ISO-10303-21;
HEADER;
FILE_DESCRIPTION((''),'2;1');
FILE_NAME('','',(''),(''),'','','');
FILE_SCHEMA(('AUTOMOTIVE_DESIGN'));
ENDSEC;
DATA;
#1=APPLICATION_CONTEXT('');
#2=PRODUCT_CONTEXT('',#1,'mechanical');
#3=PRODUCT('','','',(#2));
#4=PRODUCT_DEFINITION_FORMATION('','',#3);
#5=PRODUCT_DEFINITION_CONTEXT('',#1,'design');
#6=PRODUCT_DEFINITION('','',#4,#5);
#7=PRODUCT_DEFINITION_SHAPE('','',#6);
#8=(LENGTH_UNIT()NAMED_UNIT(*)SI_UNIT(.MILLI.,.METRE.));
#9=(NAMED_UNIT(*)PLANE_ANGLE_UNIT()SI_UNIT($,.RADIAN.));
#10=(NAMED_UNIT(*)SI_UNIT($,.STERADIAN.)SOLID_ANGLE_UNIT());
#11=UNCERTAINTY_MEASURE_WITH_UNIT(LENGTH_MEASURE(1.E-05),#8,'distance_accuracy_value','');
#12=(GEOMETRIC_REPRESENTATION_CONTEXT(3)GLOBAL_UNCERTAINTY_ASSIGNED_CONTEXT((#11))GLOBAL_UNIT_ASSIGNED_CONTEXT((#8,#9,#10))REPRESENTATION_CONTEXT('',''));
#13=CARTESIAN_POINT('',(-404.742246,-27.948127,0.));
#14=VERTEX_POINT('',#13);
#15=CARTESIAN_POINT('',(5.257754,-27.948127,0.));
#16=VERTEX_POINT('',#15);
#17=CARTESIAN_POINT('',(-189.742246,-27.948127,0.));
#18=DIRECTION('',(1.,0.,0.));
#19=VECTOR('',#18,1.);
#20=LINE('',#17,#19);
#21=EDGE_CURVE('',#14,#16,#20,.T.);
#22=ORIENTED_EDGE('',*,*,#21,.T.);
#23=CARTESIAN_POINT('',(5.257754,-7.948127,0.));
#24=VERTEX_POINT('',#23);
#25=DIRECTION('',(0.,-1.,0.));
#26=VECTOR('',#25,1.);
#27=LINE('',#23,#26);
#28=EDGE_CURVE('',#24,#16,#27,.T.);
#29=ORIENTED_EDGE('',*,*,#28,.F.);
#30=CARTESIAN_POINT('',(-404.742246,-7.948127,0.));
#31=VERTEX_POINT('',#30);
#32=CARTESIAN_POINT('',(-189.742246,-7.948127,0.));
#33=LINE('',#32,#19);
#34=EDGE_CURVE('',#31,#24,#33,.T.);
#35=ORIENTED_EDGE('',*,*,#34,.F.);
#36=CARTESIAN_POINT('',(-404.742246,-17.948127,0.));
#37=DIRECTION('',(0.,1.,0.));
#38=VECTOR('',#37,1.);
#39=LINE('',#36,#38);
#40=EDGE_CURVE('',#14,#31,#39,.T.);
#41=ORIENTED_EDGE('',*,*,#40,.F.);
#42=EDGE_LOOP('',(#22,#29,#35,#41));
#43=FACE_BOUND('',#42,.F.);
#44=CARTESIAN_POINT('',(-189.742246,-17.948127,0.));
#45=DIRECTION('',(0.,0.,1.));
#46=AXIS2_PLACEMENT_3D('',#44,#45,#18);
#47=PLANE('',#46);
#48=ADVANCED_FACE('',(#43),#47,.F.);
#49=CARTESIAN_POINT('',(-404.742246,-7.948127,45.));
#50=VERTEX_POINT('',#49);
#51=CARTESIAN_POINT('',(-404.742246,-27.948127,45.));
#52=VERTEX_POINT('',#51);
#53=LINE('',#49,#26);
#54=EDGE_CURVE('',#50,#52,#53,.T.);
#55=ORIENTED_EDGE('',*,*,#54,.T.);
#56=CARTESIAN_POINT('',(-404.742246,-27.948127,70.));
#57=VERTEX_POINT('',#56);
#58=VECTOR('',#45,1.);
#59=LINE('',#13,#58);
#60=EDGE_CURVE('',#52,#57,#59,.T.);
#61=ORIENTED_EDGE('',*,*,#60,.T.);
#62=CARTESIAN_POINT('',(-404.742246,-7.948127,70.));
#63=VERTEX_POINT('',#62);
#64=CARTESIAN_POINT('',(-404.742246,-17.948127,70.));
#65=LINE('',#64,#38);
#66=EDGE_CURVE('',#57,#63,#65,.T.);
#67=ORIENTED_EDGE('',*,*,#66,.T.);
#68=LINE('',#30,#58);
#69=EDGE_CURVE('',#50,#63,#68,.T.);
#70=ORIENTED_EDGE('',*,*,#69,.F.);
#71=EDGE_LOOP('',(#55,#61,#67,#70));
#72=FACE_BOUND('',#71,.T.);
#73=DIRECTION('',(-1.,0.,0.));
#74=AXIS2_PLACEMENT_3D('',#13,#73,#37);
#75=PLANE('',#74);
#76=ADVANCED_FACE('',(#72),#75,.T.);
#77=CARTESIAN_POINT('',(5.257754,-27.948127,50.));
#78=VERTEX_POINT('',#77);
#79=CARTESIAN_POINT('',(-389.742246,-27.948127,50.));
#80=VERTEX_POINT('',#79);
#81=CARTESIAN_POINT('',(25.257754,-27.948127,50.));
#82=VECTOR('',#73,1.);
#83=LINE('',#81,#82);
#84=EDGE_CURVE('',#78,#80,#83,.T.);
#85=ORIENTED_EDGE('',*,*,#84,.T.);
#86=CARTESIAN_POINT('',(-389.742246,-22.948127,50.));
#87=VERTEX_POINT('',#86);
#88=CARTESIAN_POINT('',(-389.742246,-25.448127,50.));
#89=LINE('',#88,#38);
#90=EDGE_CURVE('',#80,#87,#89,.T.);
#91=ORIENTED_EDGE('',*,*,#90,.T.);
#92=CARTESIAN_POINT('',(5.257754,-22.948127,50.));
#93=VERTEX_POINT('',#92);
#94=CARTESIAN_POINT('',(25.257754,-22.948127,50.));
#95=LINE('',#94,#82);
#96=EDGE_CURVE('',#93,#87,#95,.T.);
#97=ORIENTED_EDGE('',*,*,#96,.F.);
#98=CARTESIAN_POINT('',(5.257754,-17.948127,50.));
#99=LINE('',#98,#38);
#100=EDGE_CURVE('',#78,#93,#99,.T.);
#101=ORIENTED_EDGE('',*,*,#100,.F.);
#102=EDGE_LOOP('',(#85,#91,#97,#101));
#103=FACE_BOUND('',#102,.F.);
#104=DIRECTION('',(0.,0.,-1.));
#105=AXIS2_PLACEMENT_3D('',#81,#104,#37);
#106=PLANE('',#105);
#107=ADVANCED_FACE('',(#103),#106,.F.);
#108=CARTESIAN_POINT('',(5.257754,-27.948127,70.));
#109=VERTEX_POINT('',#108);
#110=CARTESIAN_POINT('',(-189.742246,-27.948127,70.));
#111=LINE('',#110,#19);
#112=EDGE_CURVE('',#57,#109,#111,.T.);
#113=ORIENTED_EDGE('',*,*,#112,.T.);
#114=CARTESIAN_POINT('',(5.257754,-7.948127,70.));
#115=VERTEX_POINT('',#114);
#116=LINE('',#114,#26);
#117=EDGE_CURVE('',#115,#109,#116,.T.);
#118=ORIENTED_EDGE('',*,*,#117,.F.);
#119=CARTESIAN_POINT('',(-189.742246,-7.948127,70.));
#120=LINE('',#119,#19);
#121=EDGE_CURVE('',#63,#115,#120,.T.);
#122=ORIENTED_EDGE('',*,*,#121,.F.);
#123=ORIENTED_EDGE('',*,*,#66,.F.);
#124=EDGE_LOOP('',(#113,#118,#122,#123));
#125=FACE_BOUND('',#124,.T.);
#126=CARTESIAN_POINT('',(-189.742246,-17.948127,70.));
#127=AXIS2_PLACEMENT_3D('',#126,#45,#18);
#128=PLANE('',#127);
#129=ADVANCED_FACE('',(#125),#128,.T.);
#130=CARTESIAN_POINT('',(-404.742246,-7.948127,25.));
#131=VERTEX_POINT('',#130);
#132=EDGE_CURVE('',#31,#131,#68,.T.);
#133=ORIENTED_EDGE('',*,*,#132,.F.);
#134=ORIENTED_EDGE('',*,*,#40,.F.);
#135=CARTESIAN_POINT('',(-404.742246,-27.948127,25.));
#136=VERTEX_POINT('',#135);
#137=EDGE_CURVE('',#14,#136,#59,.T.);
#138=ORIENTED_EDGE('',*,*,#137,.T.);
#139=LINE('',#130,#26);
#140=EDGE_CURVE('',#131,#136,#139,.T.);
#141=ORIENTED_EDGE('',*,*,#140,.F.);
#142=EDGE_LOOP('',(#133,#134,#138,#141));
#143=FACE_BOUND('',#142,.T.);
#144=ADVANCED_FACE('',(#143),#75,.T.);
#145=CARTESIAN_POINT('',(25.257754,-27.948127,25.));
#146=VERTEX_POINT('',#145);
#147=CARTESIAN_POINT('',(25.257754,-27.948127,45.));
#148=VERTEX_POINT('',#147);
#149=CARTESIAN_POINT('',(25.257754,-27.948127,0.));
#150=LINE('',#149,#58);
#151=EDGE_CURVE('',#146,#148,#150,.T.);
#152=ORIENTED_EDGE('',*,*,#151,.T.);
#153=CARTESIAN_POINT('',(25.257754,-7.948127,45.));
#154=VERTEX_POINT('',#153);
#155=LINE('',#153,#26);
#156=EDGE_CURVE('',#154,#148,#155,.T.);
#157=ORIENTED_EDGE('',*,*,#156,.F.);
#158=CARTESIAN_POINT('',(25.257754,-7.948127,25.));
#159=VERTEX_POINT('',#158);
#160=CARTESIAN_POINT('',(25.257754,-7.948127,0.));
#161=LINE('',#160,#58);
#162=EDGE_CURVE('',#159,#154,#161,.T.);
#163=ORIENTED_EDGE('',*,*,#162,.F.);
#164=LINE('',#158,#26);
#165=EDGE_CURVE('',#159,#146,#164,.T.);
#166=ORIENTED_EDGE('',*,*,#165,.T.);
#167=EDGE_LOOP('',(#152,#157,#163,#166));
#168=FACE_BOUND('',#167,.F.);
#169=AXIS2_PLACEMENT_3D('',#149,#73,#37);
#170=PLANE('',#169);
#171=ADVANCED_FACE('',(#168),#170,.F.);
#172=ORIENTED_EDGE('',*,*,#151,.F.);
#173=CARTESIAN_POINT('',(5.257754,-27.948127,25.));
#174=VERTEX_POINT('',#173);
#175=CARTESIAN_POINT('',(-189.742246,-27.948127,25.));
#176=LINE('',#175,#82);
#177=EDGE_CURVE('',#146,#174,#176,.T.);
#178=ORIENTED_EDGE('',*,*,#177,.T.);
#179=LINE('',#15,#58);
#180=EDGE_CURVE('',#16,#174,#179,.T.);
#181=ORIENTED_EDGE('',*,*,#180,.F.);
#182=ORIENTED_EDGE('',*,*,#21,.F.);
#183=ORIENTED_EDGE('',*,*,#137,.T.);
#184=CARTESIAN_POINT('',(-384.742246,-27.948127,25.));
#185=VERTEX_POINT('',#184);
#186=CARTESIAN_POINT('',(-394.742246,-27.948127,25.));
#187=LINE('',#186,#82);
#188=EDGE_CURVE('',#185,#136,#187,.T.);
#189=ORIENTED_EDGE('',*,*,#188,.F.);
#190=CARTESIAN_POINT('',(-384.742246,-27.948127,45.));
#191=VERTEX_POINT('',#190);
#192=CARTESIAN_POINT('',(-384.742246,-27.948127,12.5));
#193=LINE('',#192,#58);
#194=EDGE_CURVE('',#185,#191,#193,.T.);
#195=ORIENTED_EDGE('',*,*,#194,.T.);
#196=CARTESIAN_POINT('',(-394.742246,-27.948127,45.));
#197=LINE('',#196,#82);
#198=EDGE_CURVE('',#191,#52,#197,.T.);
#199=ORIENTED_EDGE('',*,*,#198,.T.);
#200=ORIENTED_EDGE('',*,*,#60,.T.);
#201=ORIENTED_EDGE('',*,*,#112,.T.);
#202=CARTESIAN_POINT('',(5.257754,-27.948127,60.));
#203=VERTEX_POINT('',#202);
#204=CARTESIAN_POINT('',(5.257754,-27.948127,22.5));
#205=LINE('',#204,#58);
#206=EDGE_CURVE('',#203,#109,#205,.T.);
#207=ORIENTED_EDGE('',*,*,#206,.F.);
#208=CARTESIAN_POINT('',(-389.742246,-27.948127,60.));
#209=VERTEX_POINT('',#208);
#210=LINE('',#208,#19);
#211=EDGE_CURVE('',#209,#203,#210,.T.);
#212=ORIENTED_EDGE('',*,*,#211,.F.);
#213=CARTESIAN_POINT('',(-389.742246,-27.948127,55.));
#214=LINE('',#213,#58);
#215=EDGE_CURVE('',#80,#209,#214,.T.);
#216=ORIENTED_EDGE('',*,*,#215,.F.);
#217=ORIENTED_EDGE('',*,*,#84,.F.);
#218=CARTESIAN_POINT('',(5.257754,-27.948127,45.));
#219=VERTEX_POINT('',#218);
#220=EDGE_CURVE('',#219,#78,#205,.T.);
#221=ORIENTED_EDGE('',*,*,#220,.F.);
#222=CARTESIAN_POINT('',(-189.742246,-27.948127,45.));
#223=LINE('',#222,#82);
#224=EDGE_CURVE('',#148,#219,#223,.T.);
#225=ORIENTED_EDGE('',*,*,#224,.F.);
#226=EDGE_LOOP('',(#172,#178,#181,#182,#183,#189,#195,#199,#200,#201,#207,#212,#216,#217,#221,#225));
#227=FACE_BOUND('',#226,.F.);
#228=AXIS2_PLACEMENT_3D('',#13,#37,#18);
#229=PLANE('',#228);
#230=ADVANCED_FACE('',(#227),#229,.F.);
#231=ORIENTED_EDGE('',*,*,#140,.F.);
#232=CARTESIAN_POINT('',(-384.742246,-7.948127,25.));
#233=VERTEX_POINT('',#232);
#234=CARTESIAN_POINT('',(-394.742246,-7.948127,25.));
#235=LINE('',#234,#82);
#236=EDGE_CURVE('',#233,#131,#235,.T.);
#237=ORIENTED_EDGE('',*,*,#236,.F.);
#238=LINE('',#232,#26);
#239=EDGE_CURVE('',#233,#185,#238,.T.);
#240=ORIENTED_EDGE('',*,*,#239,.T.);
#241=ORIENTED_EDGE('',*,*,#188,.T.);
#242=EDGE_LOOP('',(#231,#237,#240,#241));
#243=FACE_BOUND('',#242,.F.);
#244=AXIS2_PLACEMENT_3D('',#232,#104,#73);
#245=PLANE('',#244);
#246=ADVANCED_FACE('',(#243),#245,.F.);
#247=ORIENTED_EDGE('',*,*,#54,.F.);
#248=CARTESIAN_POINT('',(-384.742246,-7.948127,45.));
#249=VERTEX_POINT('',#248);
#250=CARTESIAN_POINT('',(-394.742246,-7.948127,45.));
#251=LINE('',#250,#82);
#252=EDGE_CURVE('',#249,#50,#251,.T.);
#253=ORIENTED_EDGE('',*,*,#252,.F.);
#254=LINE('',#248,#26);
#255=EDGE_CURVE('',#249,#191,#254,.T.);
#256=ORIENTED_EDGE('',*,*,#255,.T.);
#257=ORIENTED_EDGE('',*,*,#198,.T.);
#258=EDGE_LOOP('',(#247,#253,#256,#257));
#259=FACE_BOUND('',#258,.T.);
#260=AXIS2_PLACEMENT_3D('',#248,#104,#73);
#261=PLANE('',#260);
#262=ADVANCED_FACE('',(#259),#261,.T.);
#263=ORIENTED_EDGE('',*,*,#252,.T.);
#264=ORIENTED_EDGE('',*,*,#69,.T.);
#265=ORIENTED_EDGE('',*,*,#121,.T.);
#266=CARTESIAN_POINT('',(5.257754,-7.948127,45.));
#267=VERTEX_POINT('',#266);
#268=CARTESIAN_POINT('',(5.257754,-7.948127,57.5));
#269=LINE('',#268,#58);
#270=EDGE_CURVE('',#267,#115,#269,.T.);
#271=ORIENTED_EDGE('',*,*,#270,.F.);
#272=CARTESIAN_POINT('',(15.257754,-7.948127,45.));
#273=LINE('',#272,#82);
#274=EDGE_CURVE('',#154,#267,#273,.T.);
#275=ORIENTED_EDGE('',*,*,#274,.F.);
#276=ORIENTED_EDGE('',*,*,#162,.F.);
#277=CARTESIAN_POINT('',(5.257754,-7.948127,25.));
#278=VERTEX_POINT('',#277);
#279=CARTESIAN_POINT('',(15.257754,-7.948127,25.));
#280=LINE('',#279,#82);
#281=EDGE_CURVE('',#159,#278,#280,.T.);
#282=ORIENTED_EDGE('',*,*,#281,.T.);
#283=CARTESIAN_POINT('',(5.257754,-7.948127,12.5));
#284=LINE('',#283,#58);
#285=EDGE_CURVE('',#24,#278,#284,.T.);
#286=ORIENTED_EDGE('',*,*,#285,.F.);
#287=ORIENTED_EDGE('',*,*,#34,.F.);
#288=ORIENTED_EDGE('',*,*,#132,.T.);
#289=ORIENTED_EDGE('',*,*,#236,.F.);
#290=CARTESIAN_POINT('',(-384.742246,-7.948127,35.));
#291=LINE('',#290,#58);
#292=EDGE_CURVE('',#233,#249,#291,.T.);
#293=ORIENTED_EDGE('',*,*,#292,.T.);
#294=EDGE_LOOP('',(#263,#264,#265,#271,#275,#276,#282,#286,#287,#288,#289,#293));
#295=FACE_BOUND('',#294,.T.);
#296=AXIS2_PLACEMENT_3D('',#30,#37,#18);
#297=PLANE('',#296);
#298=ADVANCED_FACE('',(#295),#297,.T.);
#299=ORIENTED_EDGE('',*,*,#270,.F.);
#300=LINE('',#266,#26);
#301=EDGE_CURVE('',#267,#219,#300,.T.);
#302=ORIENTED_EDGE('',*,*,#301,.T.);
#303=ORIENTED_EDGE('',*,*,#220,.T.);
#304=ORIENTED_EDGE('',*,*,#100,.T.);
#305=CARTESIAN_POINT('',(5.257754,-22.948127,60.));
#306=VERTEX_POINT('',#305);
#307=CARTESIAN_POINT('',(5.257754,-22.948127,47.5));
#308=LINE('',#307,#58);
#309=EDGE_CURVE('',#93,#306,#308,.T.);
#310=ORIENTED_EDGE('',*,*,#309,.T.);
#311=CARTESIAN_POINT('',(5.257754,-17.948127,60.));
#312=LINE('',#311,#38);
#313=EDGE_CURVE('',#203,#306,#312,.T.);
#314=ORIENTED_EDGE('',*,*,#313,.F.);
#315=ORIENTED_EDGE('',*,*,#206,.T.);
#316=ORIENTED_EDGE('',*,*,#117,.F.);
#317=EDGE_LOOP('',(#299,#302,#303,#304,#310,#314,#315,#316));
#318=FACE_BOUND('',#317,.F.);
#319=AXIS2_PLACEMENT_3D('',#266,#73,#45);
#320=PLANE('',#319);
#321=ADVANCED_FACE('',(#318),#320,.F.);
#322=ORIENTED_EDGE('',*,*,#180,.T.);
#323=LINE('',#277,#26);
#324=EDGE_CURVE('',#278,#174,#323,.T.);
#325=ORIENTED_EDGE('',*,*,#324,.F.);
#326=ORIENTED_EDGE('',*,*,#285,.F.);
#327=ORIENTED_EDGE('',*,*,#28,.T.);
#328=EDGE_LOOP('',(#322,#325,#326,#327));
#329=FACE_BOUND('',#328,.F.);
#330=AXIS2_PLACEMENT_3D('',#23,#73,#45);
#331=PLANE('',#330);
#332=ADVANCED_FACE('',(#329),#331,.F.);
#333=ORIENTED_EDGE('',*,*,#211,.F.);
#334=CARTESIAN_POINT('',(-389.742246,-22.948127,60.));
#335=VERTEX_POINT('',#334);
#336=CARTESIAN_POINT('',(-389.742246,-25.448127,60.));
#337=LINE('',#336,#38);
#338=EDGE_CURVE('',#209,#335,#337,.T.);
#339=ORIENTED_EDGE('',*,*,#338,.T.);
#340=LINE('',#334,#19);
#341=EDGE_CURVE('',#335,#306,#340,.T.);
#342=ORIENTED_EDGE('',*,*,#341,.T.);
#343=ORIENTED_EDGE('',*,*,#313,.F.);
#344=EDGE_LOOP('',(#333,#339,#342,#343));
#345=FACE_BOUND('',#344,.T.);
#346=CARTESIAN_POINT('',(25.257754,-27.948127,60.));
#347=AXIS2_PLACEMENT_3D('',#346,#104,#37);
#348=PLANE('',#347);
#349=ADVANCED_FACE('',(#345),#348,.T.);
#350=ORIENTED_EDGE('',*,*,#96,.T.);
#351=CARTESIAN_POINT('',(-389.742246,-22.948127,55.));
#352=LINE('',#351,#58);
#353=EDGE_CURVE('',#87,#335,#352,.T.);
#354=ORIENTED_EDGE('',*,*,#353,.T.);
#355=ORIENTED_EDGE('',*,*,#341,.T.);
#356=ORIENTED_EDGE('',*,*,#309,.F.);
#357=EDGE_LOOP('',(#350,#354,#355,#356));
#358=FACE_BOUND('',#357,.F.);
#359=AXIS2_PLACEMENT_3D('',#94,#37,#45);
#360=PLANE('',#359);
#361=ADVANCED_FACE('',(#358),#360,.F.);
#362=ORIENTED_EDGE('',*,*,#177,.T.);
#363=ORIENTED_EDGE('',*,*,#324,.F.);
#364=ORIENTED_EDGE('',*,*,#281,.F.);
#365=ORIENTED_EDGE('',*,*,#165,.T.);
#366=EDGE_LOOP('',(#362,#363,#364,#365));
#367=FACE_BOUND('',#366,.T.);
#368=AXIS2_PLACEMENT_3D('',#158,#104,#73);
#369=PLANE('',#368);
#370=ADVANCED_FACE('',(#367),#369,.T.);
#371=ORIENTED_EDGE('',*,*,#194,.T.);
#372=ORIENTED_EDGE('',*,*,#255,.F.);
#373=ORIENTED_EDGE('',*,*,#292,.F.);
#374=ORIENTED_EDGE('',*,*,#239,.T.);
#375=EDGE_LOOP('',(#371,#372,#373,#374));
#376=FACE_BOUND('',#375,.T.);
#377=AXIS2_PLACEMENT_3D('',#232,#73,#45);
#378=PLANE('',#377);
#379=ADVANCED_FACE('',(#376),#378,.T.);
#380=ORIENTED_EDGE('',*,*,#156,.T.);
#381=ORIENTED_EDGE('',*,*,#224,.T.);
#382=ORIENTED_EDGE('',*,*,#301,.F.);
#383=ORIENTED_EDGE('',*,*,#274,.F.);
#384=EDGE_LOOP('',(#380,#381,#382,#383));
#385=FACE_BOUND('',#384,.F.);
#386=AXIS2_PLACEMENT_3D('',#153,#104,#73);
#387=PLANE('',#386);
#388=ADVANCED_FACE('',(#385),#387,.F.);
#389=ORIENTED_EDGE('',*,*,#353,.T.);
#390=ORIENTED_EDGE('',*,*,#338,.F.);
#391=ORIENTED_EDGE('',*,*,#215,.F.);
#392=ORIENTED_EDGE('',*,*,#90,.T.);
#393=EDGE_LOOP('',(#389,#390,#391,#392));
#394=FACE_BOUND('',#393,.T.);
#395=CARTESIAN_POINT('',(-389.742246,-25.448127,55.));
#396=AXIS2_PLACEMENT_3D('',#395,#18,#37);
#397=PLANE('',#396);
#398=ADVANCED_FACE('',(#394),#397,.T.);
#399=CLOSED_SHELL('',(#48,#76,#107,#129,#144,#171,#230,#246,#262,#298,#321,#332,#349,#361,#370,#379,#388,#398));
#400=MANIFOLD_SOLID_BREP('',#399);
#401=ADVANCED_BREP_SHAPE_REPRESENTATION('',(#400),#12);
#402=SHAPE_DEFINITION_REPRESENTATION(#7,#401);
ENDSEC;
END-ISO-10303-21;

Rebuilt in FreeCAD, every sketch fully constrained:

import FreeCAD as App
import Part
import Sketcher

doc = App.newDocument("Part")
body = doc.addObject("PartDesign::Body", "Body")

# Sketch on XY plane
sketch1 = doc.addObject("Sketcher::SketchObject", "Sketch")
body.addObject(sketch1)
sketch1.AttachmentSupport = (doc.XY_Plane, [""])
sketch1.MapMode = "FlatFace"
sketch1.addGeometry([
    Part.LineSegment(App.Vector(-404.742246, -7.948127, 0), App.Vector(-404.742246, -27.948127, 0)),
    Part.LineSegment(App.Vector(-404.742246, -27.948127, 0), App.Vector(25.257754, -27.948127, 0)),
    Part.LineSegment(App.Vector(25.257754, -27.948127, 0), App.Vector(25.257754, -7.948127, 0)),
    Part.LineSegment(App.Vector(25.257754, -7.948127, 0), App.Vector(-404.742246, -7.948127, 0)),
], False)
sketch1.addConstraint([
    Sketcher.Constraint("Coincident", 0, 2, 1, 1),
    Sketcher.Constraint("Coincident", 1, 2, 2, 1),
    Sketcher.Constraint("Coincident", 2, 2, 3, 1),
    Sketcher.Constraint("Coincident", 3, 2, 0, 1),
    Sketcher.Constraint("Vertical", 0),
    Sketcher.Constraint("Horizontal", 1),
    Sketcher.Constraint("Vertical", 2),
    Sketcher.Constraint("Horizontal", 3),
    Sketcher.Constraint("DistanceX", 1, 1, 1, 2, 430.0),
    Sketcher.Constraint("DistanceY", 0, 2, 0, 1, 20.0),
    Sketcher.Constraint("DistanceX", 0, 2, -1, 1, 404.742246),
    Sketcher.Constraint("DistanceY", 0, 2, -1, 1, 27.948127),
])
pad1 = doc.addObject("PartDesign::Pad", "Pad")
body.addObject(pad1)
pad1.Profile = sketch1
pad1.Length = 70

# Sketch on YZ plane
sketch2 = doc.addObject("Sketcher::SketchObject", "Sketch001")
body.addObject(sketch2)
sketch2.AttachmentSupport = (doc.YZ_Plane, [""])
sketch2.MapMode = "FlatFace"
sketch2.AttachmentOffset = App.Placement(App.Vector(0, 0, 25.257754), App.Rotation())
sketch2.addGeometry([
    Part.LineSegment(App.Vector(-27.948127, 60, 0), App.Vector(-27.948127, 50, 0)),
    Part.LineSegment(App.Vector(-27.948127, 50, 0), App.Vector(-22.948127, 50, 0)),
    Part.LineSegment(App.Vector(-22.948127, 50, 0), App.Vector(-22.948127, 60, 0)),
    Part.LineSegment(App.Vector(-22.948127, 60, 0), App.Vector(-27.948127, 60, 0)),
], False)
sketch2.addConstraint([
    Sketcher.Constraint("Coincident", 0, 2, 1, 1),
    Sketcher.Constraint("Coincident", 1, 2, 2, 1),
    Sketcher.Constraint("Coincident", 2, 2, 3, 1),
    Sketcher.Constraint("Coincident", 3, 2, 0, 1),
    Sketcher.Constraint("Vertical", 0),
    Sketcher.Constraint("Horizontal", 1),
    Sketcher.Constraint("Vertical", 2),
    Sketcher.Constraint("Horizontal", 3),
    Sketcher.Constraint("DistanceX", 1, 1, 1, 2, 5.0),
    Sketcher.Constraint("DistanceY", 0, 2, 0, 1, 10.0),
    Sketcher.Constraint("DistanceY", -1, 1, 0, 2, 50.0),
    Sketcher.Constraint("DistanceX", 0, 2, -1, 1, 27.948127),
])
pocket1 = doc.addObject("PartDesign::Pocket", "Pocket")
body.addObject(pocket1)
pocket1.Profile = sketch2
pocket1.Length = 415
pocket2 = doc.addObject("PartDesign::Pocket", "Pocket001")
body.addObject(pocket2)
pocket2.Profile = sketch2
pocket2.Length = 15

# Sketch on XZ plane
sketch3 = doc.addObject("Sketcher::SketchObject", "Sketch002")
body.addObject(sketch3)
sketch3.AttachmentSupport = (doc.XZ_Plane, [""])
sketch3.MapMode = "FlatFace"
sketch3.AttachmentOffset = App.Placement(App.Vector(0, 0, 7.948127), App.Rotation())
sketch3.addGeometry([
    Part.LineSegment(App.Vector(25.257754, 70, 0), App.Vector(25.257754, 45, 0)),  # 0
    Part.LineSegment(App.Vector(25.257754, 45, 0), App.Vector(5.257754, 45, 0)),  # 1
    Part.LineSegment(App.Vector(5.257754, 45, 0), App.Vector(5.257754, 70, 0)),  # 2
    Part.LineSegment(App.Vector(5.257754, 70, 0), App.Vector(25.257754, 70, 0)),  # 3
    Part.LineSegment(App.Vector(25.257754, 25, 0), App.Vector(25.257754, 0, 0)),  # 4
    Part.LineSegment(App.Vector(25.257754, 0, 0), App.Vector(5.257754, 0, 0)),  # 5
    Part.LineSegment(App.Vector(5.257754, 0, 0), App.Vector(5.257754, 25, 0)),  # 6
    Part.LineSegment(App.Vector(5.257754, 25, 0), App.Vector(25.257754, 25, 0)),  # 7
    Part.LineSegment(App.Vector(-384.742246, 45, 0), App.Vector(-384.742246, 25, 0)),  # 8
    Part.LineSegment(App.Vector(-384.742246, 25, 0), App.Vector(-404.742246, 25, 0)),  # 9
    Part.LineSegment(App.Vector(-404.742246, 25, 0), App.Vector(-404.742246, 45, 0)),  # 10
    Part.LineSegment(App.Vector(-404.742246, 45, 0), App.Vector(-384.742246, 45, 0)),  # 11
], False)
sketch3.addConstraint([
    Sketcher.Constraint("Coincident", 0, 2, 1, 1),
    Sketcher.Constraint("Coincident", 1, 2, 2, 1),
    Sketcher.Constraint("Coincident", 2, 2, 3, 1),
    Sketcher.Constraint("Coincident", 3, 2, 0, 1),
    Sketcher.Constraint("Coincident", 4, 2, 5, 1),
    Sketcher.Constraint("Coincident", 5, 2, 6, 1),
    Sketcher.Constraint("Coincident", 6, 2, 7, 1),
    Sketcher.Constraint("Coincident", 7, 2, 4, 1),
    Sketcher.Constraint("Coincident", 8, 2, 9, 1),
    Sketcher.Constraint("Coincident", 9, 2, 10, 1),
    Sketcher.Constraint("Coincident", 10, 2, 11, 1),
    Sketcher.Constraint("Coincident", 11, 2, 8, 1),
    Sketcher.Constraint("Vertical", 0),
    Sketcher.Constraint("Horizontal", 1),
    Sketcher.Constraint("Vertical", 2),
    Sketcher.Constraint("Horizontal", 3),
    Sketcher.Constraint("Vertical", 4),
    Sketcher.Constraint("Horizontal", 5),
    Sketcher.Constraint("Vertical", 6),
    Sketcher.Constraint("Horizontal", 7),
    Sketcher.Constraint("Vertical", 8),
    Sketcher.Constraint("Horizontal", 9),
    Sketcher.Constraint("Vertical", 10),
    Sketcher.Constraint("Horizontal", 11),
    Sketcher.Constraint("PointOnObject", 4, 2, -1),
    Sketcher.Constraint("Horizontal", 7, 2, 8, 2),
    Sketcher.Constraint("Horizontal", 1, 2, 10, 2),
    Sketcher.Constraint("Vertical", 3, 2, 4, 2),
    Sketcher.Constraint("Vertical", 2, 2, 5, 2),
    Sketcher.Constraint("Equal", 7, 9),
    Sketcher.Constraint("Equal", 2, 4),
    Sketcher.Constraint("Equal", 11, 8),
    Sketcher.Constraint("DistanceX", 1, 2, 1, 1, 20.0),
    Sketcher.Constraint("DistanceY", 0, 2, 0, 1, 25.0),
    Sketcher.Constraint("DistanceX", 8, 2, 6, 2, 390.0),
    Sketcher.Constraint("DistanceX", -1, 1, 0, 2, 25.257754),
])
pocket3 = doc.addObject("PartDesign::Pocket", "Pocket002")
body.addObject(pocket3)
pocket3.Profile = sketch3
pocket3.Type = "ThroughAll"
pocket3.Reversed = True

doc.recompute()
